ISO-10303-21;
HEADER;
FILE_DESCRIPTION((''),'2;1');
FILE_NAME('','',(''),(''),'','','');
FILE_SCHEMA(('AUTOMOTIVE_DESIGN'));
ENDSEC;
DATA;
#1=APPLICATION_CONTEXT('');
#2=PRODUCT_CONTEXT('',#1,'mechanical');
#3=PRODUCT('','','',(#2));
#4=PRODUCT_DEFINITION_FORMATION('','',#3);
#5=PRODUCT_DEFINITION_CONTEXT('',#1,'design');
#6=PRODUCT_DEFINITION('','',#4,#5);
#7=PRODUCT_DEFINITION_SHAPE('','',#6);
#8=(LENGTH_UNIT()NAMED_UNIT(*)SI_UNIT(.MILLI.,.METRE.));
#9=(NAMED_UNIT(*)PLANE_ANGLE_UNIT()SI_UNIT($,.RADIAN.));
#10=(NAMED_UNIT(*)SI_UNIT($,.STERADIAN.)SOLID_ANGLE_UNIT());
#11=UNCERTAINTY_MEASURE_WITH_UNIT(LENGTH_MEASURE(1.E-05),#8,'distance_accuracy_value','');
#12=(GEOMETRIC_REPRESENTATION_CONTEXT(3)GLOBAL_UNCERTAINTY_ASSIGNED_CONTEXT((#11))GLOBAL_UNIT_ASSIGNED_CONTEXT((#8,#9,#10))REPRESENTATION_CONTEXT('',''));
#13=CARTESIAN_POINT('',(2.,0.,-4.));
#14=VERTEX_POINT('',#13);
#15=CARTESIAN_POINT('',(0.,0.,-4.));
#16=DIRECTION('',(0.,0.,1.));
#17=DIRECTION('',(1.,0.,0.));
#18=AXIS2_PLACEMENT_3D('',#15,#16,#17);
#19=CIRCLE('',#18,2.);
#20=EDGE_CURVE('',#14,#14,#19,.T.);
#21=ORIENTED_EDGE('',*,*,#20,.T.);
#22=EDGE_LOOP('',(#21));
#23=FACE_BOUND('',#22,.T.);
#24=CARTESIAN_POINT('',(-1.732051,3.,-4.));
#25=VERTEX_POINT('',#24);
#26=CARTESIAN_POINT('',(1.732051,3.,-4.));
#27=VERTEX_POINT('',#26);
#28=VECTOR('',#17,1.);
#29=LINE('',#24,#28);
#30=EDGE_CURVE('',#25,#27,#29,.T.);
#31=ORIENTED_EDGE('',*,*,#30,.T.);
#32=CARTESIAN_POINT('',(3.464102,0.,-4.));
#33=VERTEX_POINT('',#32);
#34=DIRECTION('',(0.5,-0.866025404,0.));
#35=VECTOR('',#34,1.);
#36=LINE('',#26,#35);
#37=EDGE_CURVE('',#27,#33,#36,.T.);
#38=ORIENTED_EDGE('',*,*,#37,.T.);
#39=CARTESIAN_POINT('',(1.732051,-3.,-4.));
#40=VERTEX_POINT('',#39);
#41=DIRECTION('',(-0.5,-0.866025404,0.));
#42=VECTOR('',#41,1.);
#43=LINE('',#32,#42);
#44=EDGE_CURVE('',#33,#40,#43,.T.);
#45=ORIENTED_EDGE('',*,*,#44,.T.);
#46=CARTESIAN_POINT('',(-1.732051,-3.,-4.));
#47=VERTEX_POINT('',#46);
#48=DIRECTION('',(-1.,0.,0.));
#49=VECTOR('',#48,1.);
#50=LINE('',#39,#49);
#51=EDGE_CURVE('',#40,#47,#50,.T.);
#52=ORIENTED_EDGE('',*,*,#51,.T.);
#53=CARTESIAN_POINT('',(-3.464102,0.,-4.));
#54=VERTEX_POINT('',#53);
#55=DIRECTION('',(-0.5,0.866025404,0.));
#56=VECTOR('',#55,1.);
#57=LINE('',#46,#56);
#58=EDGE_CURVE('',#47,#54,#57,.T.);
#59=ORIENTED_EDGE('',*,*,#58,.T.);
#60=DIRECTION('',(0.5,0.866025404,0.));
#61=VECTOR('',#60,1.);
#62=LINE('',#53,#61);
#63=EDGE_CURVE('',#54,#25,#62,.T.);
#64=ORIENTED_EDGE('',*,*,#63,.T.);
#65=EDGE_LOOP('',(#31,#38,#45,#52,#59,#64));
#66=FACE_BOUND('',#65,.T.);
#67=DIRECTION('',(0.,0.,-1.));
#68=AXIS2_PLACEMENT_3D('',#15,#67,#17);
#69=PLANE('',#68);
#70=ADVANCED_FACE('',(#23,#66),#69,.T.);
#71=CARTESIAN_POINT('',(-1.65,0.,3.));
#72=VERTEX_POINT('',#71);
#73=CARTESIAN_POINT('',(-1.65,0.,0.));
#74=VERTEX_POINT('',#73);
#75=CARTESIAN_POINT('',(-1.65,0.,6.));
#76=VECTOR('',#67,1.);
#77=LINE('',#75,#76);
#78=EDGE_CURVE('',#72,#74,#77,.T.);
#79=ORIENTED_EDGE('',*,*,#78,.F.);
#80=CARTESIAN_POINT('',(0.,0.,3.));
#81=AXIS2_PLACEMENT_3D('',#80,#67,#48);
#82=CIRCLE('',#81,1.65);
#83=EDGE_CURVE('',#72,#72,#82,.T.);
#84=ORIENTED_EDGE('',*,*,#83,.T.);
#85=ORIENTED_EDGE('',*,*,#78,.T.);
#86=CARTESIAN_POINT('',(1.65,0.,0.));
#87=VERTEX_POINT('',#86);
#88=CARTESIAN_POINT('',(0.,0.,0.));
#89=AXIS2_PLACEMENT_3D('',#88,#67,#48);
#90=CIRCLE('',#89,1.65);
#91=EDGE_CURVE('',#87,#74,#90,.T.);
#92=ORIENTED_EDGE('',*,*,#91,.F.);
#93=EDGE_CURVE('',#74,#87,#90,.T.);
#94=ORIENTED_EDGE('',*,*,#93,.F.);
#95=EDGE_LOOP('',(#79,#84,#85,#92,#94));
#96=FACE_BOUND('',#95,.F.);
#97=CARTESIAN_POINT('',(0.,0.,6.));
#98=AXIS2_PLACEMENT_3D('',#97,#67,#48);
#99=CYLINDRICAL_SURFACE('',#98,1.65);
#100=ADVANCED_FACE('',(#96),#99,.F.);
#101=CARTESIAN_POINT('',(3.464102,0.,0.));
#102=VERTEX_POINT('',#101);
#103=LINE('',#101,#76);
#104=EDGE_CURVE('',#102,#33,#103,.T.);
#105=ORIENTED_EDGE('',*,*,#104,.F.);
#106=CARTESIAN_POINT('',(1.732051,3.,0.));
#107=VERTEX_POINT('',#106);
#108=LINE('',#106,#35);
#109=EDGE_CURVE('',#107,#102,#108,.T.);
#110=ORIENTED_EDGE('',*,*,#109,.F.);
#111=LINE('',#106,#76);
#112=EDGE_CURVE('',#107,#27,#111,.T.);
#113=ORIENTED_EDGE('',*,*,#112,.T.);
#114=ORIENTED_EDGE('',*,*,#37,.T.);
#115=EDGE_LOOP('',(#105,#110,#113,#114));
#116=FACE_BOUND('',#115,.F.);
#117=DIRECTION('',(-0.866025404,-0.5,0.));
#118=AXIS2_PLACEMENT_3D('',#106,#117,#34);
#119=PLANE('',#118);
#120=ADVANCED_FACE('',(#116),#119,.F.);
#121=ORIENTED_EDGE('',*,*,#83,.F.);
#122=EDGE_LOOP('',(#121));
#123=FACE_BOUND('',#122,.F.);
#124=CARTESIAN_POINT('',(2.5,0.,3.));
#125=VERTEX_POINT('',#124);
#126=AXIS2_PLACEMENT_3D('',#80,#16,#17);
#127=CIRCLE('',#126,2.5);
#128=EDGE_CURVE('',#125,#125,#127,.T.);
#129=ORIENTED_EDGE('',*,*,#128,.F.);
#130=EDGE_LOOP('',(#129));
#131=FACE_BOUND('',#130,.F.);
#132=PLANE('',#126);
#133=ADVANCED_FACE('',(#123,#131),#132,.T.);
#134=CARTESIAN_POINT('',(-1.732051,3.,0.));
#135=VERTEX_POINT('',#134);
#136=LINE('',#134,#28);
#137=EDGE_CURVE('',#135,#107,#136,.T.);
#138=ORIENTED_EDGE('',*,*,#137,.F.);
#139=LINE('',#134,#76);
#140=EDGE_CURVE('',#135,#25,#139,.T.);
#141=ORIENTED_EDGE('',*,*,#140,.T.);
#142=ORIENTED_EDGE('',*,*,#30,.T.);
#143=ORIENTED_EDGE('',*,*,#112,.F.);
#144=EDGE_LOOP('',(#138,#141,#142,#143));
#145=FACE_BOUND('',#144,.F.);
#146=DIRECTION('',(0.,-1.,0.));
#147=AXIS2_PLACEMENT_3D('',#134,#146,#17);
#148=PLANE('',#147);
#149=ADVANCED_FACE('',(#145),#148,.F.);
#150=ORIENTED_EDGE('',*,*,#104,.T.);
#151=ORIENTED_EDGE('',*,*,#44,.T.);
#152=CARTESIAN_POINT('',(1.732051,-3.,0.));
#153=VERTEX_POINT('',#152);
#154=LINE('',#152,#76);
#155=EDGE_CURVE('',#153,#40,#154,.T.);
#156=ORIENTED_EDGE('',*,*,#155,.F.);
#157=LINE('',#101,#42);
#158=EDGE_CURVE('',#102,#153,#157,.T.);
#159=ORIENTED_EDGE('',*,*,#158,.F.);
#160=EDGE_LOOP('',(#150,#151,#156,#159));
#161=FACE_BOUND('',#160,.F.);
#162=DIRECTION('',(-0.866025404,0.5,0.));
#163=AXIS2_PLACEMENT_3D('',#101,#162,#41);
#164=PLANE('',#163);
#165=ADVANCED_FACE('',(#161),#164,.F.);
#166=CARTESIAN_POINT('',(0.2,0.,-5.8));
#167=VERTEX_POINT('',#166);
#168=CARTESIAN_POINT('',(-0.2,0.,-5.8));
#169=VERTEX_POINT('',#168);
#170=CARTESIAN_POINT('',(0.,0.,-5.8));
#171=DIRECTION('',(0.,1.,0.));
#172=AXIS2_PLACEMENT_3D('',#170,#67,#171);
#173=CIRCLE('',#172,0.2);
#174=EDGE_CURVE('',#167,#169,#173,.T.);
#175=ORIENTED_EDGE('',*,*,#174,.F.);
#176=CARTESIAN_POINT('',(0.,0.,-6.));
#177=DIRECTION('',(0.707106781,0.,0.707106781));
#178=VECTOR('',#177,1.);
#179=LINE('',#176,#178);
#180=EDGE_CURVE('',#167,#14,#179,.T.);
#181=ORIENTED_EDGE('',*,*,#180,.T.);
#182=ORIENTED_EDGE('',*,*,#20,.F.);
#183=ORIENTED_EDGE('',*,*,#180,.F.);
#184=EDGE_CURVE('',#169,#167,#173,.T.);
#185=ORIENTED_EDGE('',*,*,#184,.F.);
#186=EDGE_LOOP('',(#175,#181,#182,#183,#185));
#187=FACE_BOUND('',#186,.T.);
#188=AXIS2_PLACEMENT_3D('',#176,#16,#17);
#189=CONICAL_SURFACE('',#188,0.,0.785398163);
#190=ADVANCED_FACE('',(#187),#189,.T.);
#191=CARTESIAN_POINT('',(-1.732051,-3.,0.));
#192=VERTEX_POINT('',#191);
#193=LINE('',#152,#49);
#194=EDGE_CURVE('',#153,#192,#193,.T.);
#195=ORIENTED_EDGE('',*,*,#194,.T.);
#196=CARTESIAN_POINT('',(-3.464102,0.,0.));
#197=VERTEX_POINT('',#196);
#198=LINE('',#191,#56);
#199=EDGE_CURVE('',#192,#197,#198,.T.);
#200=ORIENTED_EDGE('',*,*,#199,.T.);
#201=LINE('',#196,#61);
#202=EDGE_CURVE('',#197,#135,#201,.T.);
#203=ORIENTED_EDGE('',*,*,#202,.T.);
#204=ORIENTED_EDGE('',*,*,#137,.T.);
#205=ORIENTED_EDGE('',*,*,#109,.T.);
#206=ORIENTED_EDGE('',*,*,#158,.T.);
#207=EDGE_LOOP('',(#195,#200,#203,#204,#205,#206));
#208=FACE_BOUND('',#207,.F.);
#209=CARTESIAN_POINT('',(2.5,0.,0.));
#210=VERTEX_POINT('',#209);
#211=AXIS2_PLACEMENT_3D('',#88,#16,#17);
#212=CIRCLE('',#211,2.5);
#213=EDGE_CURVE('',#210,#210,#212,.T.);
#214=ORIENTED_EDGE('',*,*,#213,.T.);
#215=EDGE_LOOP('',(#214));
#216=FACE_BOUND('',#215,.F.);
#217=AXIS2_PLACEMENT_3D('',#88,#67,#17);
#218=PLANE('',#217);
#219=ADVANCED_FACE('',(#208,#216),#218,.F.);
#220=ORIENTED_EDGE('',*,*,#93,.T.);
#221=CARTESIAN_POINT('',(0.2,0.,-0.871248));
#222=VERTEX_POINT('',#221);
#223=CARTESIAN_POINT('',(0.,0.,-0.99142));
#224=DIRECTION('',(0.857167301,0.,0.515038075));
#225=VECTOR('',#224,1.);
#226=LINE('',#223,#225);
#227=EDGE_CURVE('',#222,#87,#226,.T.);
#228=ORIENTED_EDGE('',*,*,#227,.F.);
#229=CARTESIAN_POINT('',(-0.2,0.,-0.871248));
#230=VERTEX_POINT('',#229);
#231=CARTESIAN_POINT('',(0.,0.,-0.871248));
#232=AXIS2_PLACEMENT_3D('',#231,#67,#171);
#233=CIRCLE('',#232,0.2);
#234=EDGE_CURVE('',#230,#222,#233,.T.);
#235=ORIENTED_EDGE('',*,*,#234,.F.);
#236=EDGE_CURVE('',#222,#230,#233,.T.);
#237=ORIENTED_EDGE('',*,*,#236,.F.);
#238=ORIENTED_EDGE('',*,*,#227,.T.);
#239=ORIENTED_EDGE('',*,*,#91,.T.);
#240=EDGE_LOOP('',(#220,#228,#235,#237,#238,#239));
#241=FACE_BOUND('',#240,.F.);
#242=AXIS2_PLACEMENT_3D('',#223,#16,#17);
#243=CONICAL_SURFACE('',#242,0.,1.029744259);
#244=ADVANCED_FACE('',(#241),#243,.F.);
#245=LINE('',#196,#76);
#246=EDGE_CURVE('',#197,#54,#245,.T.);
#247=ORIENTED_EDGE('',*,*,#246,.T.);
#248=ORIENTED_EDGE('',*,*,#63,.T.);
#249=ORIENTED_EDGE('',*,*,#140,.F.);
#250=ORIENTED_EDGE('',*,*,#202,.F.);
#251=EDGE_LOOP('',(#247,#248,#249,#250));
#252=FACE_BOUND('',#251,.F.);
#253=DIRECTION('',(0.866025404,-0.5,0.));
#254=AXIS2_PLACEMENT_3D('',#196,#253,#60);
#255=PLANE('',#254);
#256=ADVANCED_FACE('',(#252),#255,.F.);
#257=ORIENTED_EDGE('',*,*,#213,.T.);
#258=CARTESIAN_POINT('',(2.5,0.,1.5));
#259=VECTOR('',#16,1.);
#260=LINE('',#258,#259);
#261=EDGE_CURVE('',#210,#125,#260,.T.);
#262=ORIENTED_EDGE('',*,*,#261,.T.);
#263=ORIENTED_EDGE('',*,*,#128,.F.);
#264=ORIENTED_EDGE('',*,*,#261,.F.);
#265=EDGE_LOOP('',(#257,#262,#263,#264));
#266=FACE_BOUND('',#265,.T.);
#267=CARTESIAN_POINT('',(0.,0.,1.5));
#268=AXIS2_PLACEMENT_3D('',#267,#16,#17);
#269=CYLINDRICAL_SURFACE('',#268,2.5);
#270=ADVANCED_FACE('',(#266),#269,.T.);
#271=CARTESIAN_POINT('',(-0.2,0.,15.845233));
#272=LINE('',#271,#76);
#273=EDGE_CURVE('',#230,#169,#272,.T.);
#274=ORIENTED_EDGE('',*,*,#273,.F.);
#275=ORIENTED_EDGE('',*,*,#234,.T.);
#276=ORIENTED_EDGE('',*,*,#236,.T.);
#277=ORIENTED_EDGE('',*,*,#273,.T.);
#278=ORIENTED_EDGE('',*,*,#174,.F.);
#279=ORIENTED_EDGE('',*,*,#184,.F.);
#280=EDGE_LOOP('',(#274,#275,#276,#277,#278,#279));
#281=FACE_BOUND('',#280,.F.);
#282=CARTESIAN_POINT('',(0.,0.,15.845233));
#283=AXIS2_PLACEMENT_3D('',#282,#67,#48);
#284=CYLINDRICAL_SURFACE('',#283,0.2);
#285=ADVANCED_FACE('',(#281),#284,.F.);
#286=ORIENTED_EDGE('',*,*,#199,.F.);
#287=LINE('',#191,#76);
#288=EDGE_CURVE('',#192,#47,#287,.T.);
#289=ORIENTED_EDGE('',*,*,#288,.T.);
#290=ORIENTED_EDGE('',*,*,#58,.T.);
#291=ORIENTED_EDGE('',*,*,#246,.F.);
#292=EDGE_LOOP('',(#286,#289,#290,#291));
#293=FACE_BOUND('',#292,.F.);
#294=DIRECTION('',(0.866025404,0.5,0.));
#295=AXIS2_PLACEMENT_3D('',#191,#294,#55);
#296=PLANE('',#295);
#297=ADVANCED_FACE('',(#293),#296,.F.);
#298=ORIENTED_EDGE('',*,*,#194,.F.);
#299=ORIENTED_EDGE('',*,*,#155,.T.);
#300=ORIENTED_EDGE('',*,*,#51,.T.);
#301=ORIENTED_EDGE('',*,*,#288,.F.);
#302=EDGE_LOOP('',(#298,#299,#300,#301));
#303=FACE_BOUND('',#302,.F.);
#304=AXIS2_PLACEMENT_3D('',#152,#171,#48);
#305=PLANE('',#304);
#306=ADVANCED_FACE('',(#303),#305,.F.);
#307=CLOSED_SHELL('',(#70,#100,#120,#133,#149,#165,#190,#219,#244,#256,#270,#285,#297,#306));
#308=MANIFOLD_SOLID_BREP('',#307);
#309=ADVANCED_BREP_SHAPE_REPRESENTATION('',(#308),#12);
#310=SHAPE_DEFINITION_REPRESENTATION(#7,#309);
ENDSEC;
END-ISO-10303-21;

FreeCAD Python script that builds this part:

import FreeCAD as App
import Part
import Sketcher
from FreeCAD import Vector
Q = App.Units.Quantity

doc = App.newDocument("Part")
params = doc.addObject("Spreadsheet::Sheet", "Params")
for row, (alias, value) in enumerate([
    ("sketch1_height", "3 mm"),
    ("sketch1_width", "2.5 mm"),
    ("revolution_angle", "360 deg"),
    ("pad1_length", "4 mm"),
    ("sketch3_width", "2 mm"),
    ("revolution2_angle", "360 deg"),
    ("sketch4_diameter", "3.3 mm"),
    ("hole_diameter", "3.3 mm"),
    ("hole_depth", "3 mm"),
    ("sketch5_diameter", "0.4 mm"),
    ("hole2_diameter", "0.4 mm"),
], start=1):
    params.set(f"A{row}", alias)
    params.set(f"B{row}", "=" + value)
    params.setAlias(f"B{row}", alias)

body = doc.addObject("PartDesign::Body", "Body")

sketch1 = body.newObject("Sketcher::SketchObject", "Sketch")
sketch1.AttachmentSupport = (doc.getObject("XZ_Plane"), [""])
sketch1.MapMode = "FlatFace"
sketch1.addGeometry(Part.LineSegment(Vector(0, 3, 0), Vector(0, 0, 0)), False)
sketch1.addGeometry(Part.LineSegment(Vector(0, 0, 0), Vector(2.5, 0, 0)), False)
sketch1.addGeometry(Part.LineSegment(Vector(2.5, 0, 0), Vector(2.5, 3, 0)), False)
sketch1.addGeometry(Part.LineSegment(Vector(2.5, 3, 0), Vector(0, 3, 0)), False)
sketch1.addConstraint(Sketcher.Constraint("Coincident", 0, 2, 1, 1))
sketch1.addConstraint(Sketcher.Constraint("Coincident", 1, 2, 2, 1))
sketch1.addConstraint(Sketcher.Constraint("Coincident", 2, 2, 3, 1))
sketch1.addConstraint(Sketcher.Constraint("Coincident", 3, 2, 0, 1))
sketch1.addConstraint(Sketcher.Constraint("Vertical", 0))
sketch1.addConstraint(Sketcher.Constraint("Horizontal", 1))
sketch1.addConstraint(Sketcher.Constraint("Vertical", 2))
sketch1.addConstraint(Sketcher.Constraint("Horizontal", 3))
sketch1.addConstraint(Sketcher.Constraint("Coincident", 0, 2, -1, 1))
sketch1.addConstraint(Sketcher.Constraint("DistanceY", 0, 2, 0, 1, 3.0))
sketch1.addConstraint(Sketcher.Constraint("DistanceX", 1, 1, 1, 2, 2.5))
sketch1.setExpression("Constraints[9]", "Params.sketch1_height")
sketch1.setExpression("Constraints[10]", "Params.sketch1_width")
revolution = body.newObject("PartDesign::Revolution", "Revolution")
revolution.Profile = sketch1
revolution.ReferenceAxis = (sketch1, ["V_Axis"])
revolution.setExpression("Angle", "Params.revolution_angle")

sketch2 = body.newObject("Sketcher::SketchObject", "Sketch001")
sketch2.AttachmentSupport = (doc.getObject("XY_Plane"), [""])
sketch2.MapMode = "FlatFace"
sketch2.addGeometry(Part.LineSegment(Vector(1.732051, -3, 0), Vector(-1.732051, -3, 0)), False)
sketch2.addGeometry(Part.LineSegment(Vector(-1.732051, -3, 0), Vector(-3.464102, 0, 0)), False)
sketch2.addGeometry(Part.LineSegment(Vector(-3.464102, 0, 0), Vector(-1.732051, 3, 0)), False)
sketch2.addGeometry(Part.LineSegment(Vector(-1.732051, 3, 0), Vector(1.732051, 3, 0)), False)
sketch2.addGeometry(Part.LineSegment(Vector(1.732051, 3, 0), Vector(3.464102, 0, 0)), False)
sketch2.addGeometry(Part.LineSegment(Vector(3.464102, 0, 0), Vector(1.732051, -3, 0)), False)
sketch2.addConstraint(Sketcher.Constraint("Coincident", 0, 2, 1, 1))
sketch2.addConstraint(Sketcher.Constraint("Coincident", 1, 2, 2, 1))
sketch2.addConstraint(Sketcher.Constraint("Coincident", 2, 2, 3, 1))
sketch2.addConstraint(Sketcher.Constraint("Coincident", 3, 2, 4, 1))
sketch2.addConstraint(Sketcher.Constraint("Coincident", 4, 2, 5, 1))
sketch2.addConstraint(Sketcher.Constraint("Coincident", 5, 2, 0, 1))
sketch2.addConstraint(Sketcher.Constraint("Horizontal", 0))
sketch2.addConstraint(Sketcher.Constraint("Horizontal", 3))
sketch2.addConstraint(Sketcher.Constraint("Symmetric", 0, 2, 3, 2, -1, 1))
sketch2.addConstraint(Sketcher.Constraint("Symmetric", 1, 2, 4, 2, -1, 1))
sketch2.addConstraint(Sketcher.Constraint("PointOnObject", 1, 2, -1))
sketch2.addConstraint(Sketcher.Constraint("Parallel", 2, 5))
sketch2.addConstraint(Sketcher.Constraint("Vertical", 0, 2, 2, 2))
sketch2.addConstraint(Sketcher.Constraint("Angle", 1, Q("120 deg")))
sketch2.addConstraint(Sketcher.Constraint("DistanceY", 0, 2, -1, 1, 3.0))
sketch2.addConstraint(Sketcher.Constraint("DistanceX", 0, 2, 0, 1, 3.464102))
pad1 = body.newObject("PartDesign::Pad", "Pad")
pad1.Profile = sketch2
pad1.setExpression("Length", "Params.pad1_length")
pad1.Reversed = True

sketch3 = body.newObject("Sketcher::SketchObject", "Sketch002")
sketch3.AttachmentSupport = (doc.getObject("XZ_Plane"), [""])
sketch3.MapMode = "FlatFace"
sketch3.addGeometry(Part.LineSegment(Vector(2, -4, 0), Vector(0, -4, 0)), False)
sketch3.addGeometry(Part.LineSegment(Vector(0, -4, 0), Vector(0, -6, 0)), False)
sketch3.addGeometry(Part.LineSegment(Vector(0, -6, 0), Vector(2, -4, 0)), False)
sketch3.addConstraint(Sketcher.Constraint("Coincident", 0, 2, 1, 1))
sketch3.addConstraint(Sketcher.Constraint("Coincident", 1, 2, 2, 1))
sketch3.addConstraint(Sketcher.Constraint("Coincident", 2, 2, 0, 1))
sketch3.addConstraint(Sketcher.Constraint("Horizontal", 0))
sketch3.addConstraint(Sketcher.Constraint("Vertical", 1))
sketch3.addConstraint(Sketcher.Constraint("PointOnObject", 0, 2, -2))
sketch3.addConstraint(Sketcher.Constraint("Equal", 0, 1))
sketch3.addConstraint(Sketcher.Constraint("DistanceX", 0, 2, 0, 1, 2.0))
sketch3.addConstraint(Sketcher.Constraint("DistanceY", 0, 2, -1, 1, 4.0))
sketch3.setExpression("Constraints[7]", "Params.sketch3_width")
revolution2 = body.newObject("PartDesign::Revolution", "Revolution001")
revolution2.Profile = sketch3
revolution2.ReferenceAxis = (sketch3, ["V_Axis"])
revolution2.setExpression("Angle", "Params.revolution2_angle")

sketch4 = body.newObject("Sketcher::SketchObject", "Sketch003")
sketch4.AttachmentSupport = (doc.getObject("XY_Plane"), [""])
sketch4.MapMode = "FlatFace"
sketch4.AttachmentOffset = App.Placement(Vector(0, 0, 3), App.Rotation())
sketch4.addGeometry(Part.Circle(Vector(0, 0, 0), Vector(0, 0, 1), 1.65), False)
sketch4.addConstraint(Sketcher.Constraint("Coincident", 0, 3, -1, 1))
sketch4.addConstraint(Sketcher.Constraint("Diameter", 0, 3.3))
sketch4.setExpression("Constraints[1]", "Params.sketch4_diameter")
doc.recompute()
hole = body.newObject("PartDesign::Hole", "Hole")
hole.Profile = sketch4
hole.ThreadType = "None"
hole.setExpression("Diameter", "Params.hole_diameter")
hole.DepthType = "Dimension"
hole.setExpression("Depth", "Params.hole_depth")
hole.DrillPoint = "Angled"
hole.DrillPointAngle = 118

sketch5 = body.newObject("Sketcher::SketchObject", "Sketch004")
sketch5.AttachmentSupport = (doc.getObject("XY_Plane"), [""])
sketch5.MapMode = "FlatFace"
sketch5.AttachmentOffset = App.Placement(Vector(0, 0, 3), App.Rotation())
sketch5.addGeometry(Part.Circle(Vector(0, 0, 0), Vector(0, 0, 1), 0.2), False)
sketch5.addConstraint(Sketcher.Constraint("Coincident", 0, 3, -1, 1))
sketch5.addConstraint(Sketcher.Constraint("Diameter", 0, 0.4))
sketch5.setExpression("Constraints[1]", "Params.sketch5_diameter")
doc.recompute()
hole2 = body.newObject("PartDesign::Hole", "Hole001")
hole2.Profile = sketch5
hole2.ThreadType = "None"
hole2.setExpression("Diameter", "Params.hole2_diameter")
hole2.DepthType = "ThroughAll"

doc.recompute()
